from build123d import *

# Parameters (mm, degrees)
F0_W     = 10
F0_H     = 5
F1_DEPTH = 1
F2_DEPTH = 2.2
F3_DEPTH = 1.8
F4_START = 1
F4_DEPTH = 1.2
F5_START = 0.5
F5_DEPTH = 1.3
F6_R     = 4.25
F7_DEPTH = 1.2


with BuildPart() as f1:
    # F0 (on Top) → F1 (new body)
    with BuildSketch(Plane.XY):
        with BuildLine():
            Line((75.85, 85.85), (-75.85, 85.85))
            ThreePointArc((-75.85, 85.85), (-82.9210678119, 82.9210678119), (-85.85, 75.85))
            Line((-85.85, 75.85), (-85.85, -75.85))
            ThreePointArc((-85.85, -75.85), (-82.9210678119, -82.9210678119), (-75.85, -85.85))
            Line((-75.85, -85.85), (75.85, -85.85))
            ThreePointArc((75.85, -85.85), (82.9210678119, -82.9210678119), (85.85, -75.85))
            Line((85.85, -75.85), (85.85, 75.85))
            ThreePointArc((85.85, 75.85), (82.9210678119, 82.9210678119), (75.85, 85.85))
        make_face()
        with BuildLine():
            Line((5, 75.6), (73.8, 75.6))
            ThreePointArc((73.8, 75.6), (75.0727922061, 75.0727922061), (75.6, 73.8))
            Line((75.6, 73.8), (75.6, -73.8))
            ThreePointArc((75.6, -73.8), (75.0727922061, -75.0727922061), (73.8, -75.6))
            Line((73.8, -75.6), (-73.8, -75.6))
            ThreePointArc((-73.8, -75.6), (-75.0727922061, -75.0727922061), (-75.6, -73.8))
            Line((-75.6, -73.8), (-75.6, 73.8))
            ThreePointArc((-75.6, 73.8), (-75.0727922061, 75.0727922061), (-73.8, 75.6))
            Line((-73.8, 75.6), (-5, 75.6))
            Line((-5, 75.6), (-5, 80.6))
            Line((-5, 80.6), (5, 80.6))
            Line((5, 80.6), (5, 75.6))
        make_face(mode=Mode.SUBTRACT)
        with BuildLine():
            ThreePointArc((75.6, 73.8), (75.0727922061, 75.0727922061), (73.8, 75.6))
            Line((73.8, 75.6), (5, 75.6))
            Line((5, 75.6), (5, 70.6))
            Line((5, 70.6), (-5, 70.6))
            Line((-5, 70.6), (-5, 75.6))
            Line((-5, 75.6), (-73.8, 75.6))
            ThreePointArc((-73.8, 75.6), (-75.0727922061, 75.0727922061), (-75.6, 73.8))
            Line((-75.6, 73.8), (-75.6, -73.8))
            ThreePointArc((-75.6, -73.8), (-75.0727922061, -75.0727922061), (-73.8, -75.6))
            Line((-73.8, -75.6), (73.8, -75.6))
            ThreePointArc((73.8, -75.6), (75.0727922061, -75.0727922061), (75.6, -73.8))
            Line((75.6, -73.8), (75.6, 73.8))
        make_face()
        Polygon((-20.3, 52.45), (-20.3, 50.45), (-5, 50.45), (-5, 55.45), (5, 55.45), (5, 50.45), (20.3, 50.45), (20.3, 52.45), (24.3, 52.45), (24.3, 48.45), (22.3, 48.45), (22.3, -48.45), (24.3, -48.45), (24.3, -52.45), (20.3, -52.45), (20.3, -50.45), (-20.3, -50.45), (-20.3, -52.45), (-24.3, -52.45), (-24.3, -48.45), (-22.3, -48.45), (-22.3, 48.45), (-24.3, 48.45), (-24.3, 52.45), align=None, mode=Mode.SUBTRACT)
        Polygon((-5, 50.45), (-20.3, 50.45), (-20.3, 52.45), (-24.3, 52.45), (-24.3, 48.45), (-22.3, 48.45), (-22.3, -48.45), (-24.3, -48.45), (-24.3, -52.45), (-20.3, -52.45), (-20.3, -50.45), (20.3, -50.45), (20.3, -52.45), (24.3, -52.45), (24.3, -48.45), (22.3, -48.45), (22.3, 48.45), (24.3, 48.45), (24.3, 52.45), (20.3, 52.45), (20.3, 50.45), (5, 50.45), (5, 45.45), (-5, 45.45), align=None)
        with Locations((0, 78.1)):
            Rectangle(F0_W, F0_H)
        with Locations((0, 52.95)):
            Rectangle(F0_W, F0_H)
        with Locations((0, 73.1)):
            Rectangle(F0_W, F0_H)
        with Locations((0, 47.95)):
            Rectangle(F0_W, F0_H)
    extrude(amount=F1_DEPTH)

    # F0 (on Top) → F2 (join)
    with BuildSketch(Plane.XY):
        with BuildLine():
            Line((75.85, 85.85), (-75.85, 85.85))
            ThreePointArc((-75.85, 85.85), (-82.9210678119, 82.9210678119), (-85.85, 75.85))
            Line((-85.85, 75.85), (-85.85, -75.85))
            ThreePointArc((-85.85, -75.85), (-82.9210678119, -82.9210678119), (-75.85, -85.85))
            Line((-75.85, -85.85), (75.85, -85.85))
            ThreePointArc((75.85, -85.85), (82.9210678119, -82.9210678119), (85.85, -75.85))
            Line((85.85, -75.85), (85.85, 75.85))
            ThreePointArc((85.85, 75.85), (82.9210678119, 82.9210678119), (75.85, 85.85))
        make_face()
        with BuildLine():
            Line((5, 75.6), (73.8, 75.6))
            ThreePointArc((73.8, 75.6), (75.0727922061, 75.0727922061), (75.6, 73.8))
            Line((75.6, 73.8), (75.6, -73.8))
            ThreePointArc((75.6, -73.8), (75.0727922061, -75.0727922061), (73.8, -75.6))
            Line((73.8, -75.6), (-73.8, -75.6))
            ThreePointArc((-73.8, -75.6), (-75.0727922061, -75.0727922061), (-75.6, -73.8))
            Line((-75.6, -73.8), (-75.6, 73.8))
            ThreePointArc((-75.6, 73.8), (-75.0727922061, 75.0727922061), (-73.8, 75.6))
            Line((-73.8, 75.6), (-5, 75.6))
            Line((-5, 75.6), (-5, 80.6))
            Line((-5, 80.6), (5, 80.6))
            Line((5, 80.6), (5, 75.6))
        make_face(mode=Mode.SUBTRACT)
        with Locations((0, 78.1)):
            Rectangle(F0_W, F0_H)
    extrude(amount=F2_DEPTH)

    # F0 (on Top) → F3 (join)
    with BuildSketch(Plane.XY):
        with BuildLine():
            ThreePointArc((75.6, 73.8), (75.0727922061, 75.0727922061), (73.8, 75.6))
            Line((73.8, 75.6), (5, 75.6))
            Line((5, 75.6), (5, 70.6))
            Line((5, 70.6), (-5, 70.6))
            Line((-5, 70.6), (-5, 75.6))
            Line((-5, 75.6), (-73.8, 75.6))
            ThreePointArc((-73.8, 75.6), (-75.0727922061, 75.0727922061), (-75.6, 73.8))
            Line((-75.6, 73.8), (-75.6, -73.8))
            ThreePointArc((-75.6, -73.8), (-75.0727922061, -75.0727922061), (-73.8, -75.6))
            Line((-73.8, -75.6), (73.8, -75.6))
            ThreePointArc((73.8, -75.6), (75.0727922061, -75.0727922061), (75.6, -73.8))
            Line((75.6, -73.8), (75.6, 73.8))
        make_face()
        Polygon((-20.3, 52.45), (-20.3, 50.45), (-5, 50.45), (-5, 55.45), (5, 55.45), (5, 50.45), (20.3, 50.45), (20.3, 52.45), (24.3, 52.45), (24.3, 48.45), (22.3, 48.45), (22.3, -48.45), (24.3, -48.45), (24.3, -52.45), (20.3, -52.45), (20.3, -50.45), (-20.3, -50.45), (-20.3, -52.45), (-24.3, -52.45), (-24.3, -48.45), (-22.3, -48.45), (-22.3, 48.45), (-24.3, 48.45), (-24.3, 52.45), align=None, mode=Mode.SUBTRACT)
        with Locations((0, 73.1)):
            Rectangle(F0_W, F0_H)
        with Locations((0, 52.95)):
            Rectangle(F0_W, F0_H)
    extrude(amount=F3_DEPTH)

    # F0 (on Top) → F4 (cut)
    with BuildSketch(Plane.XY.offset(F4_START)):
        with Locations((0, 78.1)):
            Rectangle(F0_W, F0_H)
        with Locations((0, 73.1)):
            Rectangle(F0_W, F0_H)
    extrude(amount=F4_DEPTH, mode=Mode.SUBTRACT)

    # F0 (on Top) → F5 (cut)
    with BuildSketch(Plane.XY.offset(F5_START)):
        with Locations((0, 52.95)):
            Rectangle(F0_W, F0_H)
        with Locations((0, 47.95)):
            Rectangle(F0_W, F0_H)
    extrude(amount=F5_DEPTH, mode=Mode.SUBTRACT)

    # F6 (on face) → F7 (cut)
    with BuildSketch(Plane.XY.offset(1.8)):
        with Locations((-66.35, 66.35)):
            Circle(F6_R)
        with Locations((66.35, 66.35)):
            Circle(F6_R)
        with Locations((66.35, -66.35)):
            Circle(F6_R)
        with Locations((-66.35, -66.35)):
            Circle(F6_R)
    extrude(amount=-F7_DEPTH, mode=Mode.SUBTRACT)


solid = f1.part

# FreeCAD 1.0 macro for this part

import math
import FreeCAD as App
import Part
import Sketcher
from FreeCAD import Vector
Q = App.Units.Quantity

doc = App.newDocument("Part")
body = doc.addObject("PartDesign::Body", "Body")

# Sketch on XY plane
sketch1 = body.newObject("Sketcher::SketchObject", "Sketch")
sketch1.AttachmentSupport = (doc.getObject("XY_Plane"), [""])
sketch1.MapMode = "FlatFace"
sketch1.addGeometry(Part.LineSegment(Vector(75.85, 85.85, 0), Vector(-75.85, 85.85, 0)), False)
sketch1.addGeometry(Part.ArcOfCircle(Part.Circle(Vector(-75.85, 75.85, 0), Vector(0, 0, 1), 10), math.radians(90), math.radians(180)), False)
sketch1.addGeometry(Part.LineSegment(Vector(-85.85, 75.85, 0), Vector(-85.85, -75.85, 0)), False)
sketch1.addGeometry(Part.ArcOfCircle(Part.Circle(Vector(-75.85, -75.85, 0), Vector(0, 0, 1), 10), math.radians(180), math.radians(270)), False)
sketch1.addGeometry(Part.LineSegment(Vector(-75.85, -85.85, 0), Vector(75.85, -85.85, 0)), False)
sketch1.addGeometry(Part.ArcOfCircle(Part.Circle(Vector(75.85, -75.85, 0), Vector(0, 0, 1), 10), math.radians(-90), math.radians(0)), False)
sketch1.addGeometry(Part.LineSegment(Vector(85.85, -75.85, 0), Vector(85.85, 75.85, 0)), False)
sketch1.addGeometry(Part.ArcOfCircle(Part.Circle(Vector(75.85, 75.85, 0), Vector(0, 0, 1), 10), math.radians(0), math.radians(90)), False)
sketch1.addConstraint(Sketcher.Constraint("Tangent", 0, 2, 1, 1))
sketch1.addConstraint(Sketcher.Constraint("Tangent", 1, 2, 2, 1))
sketch1.addConstraint(Sketcher.Constraint("Tangent", 2, 2, 3, 1))
sketch1.addConstraint(Sketcher.Constraint("Tangent", 3, 2, 4, 1))
sketch1.addConstraint(Sketcher.Constraint("Tangent", 4, 2, 5, 1))
sketch1.addConstraint(Sketcher.Constraint("Tangent", 5, 2, 6, 1))
sketch1.addConstraint(Sketcher.Constraint("Tangent", 6, 2, 7, 1))
sketch1.addConstraint(Sketcher.Constraint("Tangent", 7, 2, 0, 1))
sketch1.addConstraint(Sketcher.Constraint("Horizontal", 0))
sketch1.addConstraint(Sketcher.Constraint("Vertical", 2))
sketch1.addConstraint(Sketcher.Constraint("Horizontal", 4))
sketch1.addConstraint(Sketcher.Constraint("Vertical", 6))
sketch1.addConstraint(Sketcher.Constraint("Equal", 1, 3))
sketch1.addConstraint(Sketcher.Constraint("Equal", 3, 5))
sketch1.addConstraint(Sketcher.Constraint("Equal", 5, 7))
sketch1.addConstraint(Sketcher.Constraint("Symmetric", 1, 3, 5, 3, -1, 1))
sketch1.addConstraint(Sketcher.Constraint("Equal", 4, 2))
sketch1.addConstraint(Sketcher.Constraint("Radius", 1, Q("10 mm")))
sketch1.addConstraint(Sketcher.Constraint("DistanceX", 0, 2, 0, 1, Q("151.7 mm")))
pad1 = body.newObject("PartDesign::Pad", "Pad")
pad1.Profile = sketch1
pad1.Length = 1

# Sketch on XY plane
sketch2 = body.newObject("Sketcher::SketchObject", "Sketch001")
sketch2.AttachmentSupport = (doc.getObject("XY_Plane"), [""])
sketch2.MapMode = "FlatFace"
sketch2.addGeometry(Part.LineSegment(Vector(75.85, 85.85, 0), Vector(-75.85, 85.85, 0)), False)
sketch2.addGeometry(Part.ArcOfCircle(Part.Circle(Vector(-75.85, 75.85, 0), Vector(0, 0, 1), 10), math.radians(90), math.radians(180)), False)
sketch2.addGeometry(Part.LineSegment(Vector(-85.85, 75.85, 0), Vector(-85.85, -75.85, 0)), False)
sketch2.addGeometry(Part.ArcOfCircle(Part.Circle(Vector(-75.85, -75.85, 0), Vector(0, 0, 1), 10), math.radians(180), math.radians(270)), False)
sketch2.addGeometry(Part.LineSegment(Vector(-75.85, -85.85, 0), Vector(75.85, -85.85, 0)), False)
sketch2.addGeometry(Part.ArcOfCircle(Part.Circle(Vector(75.85, -75.85, 0), Vector(0, 0, 1), 10), math.radians(-90), math.radians(0)), False)
sketch2.addGeometry(Part.LineSegment(Vector(85.85, -75.85, 0), Vector(85.85, 75.85, 0)), False)
sketch2.addGeometry(Part.ArcOfCircle(Part.Circle(Vector(75.85, 75.85, 0), Vector(0, 0, 1), 10), math.radians(0), math.radians(90)), False)
sketch2.addGeometry(Part.LineSegment(Vector(-73.8, 75.6, 0), Vector(73.8, 75.6, 0)), False)
sketch2.addGeometry(Part.ArcOfCircle(Part.Circle(Vector(73.8, 73.8, 0), Vector(0, 0, 1), 1.8), math.radians(0), math.radians(90)), False)
sketch2.addGeometry(Part.LineSegment(Vector(75.6, 73.8, 0), Vector(75.6, -73.8, 0)), False)
sketch2.addGeometry(Part.ArcOfCircle(Part.Circle(Vector(73.8, -73.8, 0), Vector(0, 0, 1), 1.8), math.radians(-90), math.radians(0)), False)
sketch2.addGeometry(Part.LineSegment(Vector(73.8, -75.6, 0), Vector(-73.8, -75.6, 0)), False)
sketch2.addGeometry(Part.ArcOfCircle(Part.Circle(Vector(-73.8, -73.8, 0), Vector(0, 0, 1), 1.8), math.radians(180), math.radians(270)), False)
sketch2.addGeometry(Part.LineSegment(Vector(-75.6, -73.8, 0), Vector(-75.6, 73.8, 0)), False)
sketch2.addGeometry(Part.ArcOfCircle(Part.Circle(Vector(-73.8, 73.8, 0), Vector(0, 0, 1), 1.8), math.radians(90), math.radians(180)), False)
sketch2.addConstraint(Sketcher.Constraint("Tangent", 0, 2, 1, 1))
sketch2.addConstraint(Sketcher.Constraint("Tangent", 1, 2, 2, 1))
sketch2.addConstraint(Sketcher.Constraint("Tangent", 2, 2, 3, 1))
sketch2.addConstraint(Sketcher.Constraint("Tangent", 3, 2, 4, 1))
sketch2.addConstraint(Sketcher.Constraint("Tangent", 4, 2, 5, 1))
sketch2.addConstraint(Sketcher.Constraint("Tangent", 5, 2, 6, 1))
sketch2.addConstraint(Sketcher.Constraint("Tangent", 6, 2, 7, 1))
sketch2.addConstraint(Sketcher.Constraint("Tangent", 7, 2, 0, 1))
sketch2.addConstraint(Sketcher.Constraint("Tangent", 8, 2, 9, 2))
sketch2.addConstraint(Sketcher.Constraint("Tangent", 9, 1, 10, 1))
sketch2.addConstraint(Sketcher.Constraint("Tangent", 10, 2, 11, 2))
sketch2.addConstraint(Sketcher.Constraint("Tangent", 11, 1, 12, 1))
sketch2.addConstraint(Sketcher.Constraint("Tangent", 12, 2, 13, 2))
sketch2.addConstraint(Sketcher.Constraint("Tangent", 13, 1, 14, 1))
sketch2.addConstraint(Sketcher.Constraint("Tangent", 14, 2, 15, 2))
sketch2.addConstraint(Sketcher.Constraint("Tangent", 15, 1, 8, 1))
sketch2.addConstraint(Sketcher.Constraint("Horizontal", 0))
sketch2.addConstraint(Sketcher.Constraint("Vertical", 2))
sketch2.addConstraint(Sketcher.Constraint("Horizontal", 4))
sketch2.addConstraint(Sketcher.Constraint("Vertical", 6))
sketch2.addConstraint(Sketcher.Constraint("Horizontal", 8))
sketch2.addConstraint(Sketcher.Constraint("Vertical", 10))
sketch2.addConstraint(Sketcher.Constraint("Horizontal", 12))
sketch2.addConstraint(Sketcher.Constraint("Vertical", 14))
sketch2.addConstraint(Sketcher.Constraint("Equal", 1, 3))
sketch2.addConstraint(Sketcher.Constraint("Equal", 3, 5))
sketch2.addConstraint(Sketcher.Constraint("Equal", 5, 7))
sketch2.addConstraint(Sketcher.Constraint("Equal", 9, 11))
sketch2.addConstraint(Sketcher.Constraint("Equal", 11, 13))
sketch2.addConstraint(Sketcher.Constraint("Equal", 13, 15))
sketch2.addConstraint(Sketcher.Constraint("Symmetric", 1, 3, 5, 3, -1, 1))
sketch2.addConstraint(Sketcher.Constraint("Symmetric", 9, 3, 13, 3, -1, 1))
sketch2.addConstraint(Sketcher.Constraint("Equal", 4, 2))
sketch2.addConstraint(Sketcher.Constraint("Equal", 12, 10))
sketch2.addConstraint(Sketcher.Constraint("Radius", 1, Q("10 mm")))
sketch2.addConstraint(Sketcher.Constraint("Radius", 9, Q("1.8 mm")))
sketch2.addConstraint(Sketcher.Constraint("DistanceX", 0, 2, 0, 1, Q("151.7 mm")))
sketch2.addConstraint(Sketcher.Constraint("DistanceX", 8, 1, 8, 2, Q("147.6 mm")))
pad2 = body.newObject("PartDesign::Pad", "Pad001")
pad2.Profile = sketch2
pad2.Length = 2.2

# Sketch on XY plane
sketch3 = body.newObject("Sketcher::SketchObject", "Sketch002")
sketch3.AttachmentSupport = (doc.getObject("XY_Plane"), [""])
sketch3.MapMode = "FlatFace"
sketch3.addGeometry(Part.ArcOfCircle(Part.Circle(Vector(73.8, 73.8, 0), Vector(0, 0, 1), 1.8), math.radians(0), math.radians(90)), False)
sketch3.addGeometry(Part.LineSegment(Vector(73.8, 75.6, 0), Vector(-73.8, 75.6, 0)), False)
sketch3.addGeometry(Part.ArcOfCircle(Part.Circle(Vector(-73.8, 73.8, 0), Vector(0, 0, 1), 1.8), math.radians(90), math.radians(180)), False)
sketch3.addGeometry(Part.LineSegment(Vector(-75.6, 73.8, 0), Vector(-75.6, -73.8, 0)), False)
sketch3.addGeometry(Part.ArcOfCircle(Part.Circle(Vector(-73.8, -73.8, 0), Vector(0, 0, 1), 1.8), math.radians(180), math.radians(270)), False)
sketch3.addGeometry(Part.LineSegment(Vector(-73.8, -75.6, 0), Vector(73.8, -75.6, 0)), False)
sketch3.addGeometry(Part.ArcOfCircle(Part.Circle(Vector(73.8, -73.8, 0), Vector(0, 0, 1), 1.8), math.radians(-90), math.radians(0)), False)
sketch3.addGeometry(Part.LineSegment(Vector(75.6, -73.8, 0), Vector(75.6, 73.8, 0)), False)
sketch3.addGeometry(Part.LineSegment(Vector(-24.3, 52.45, 0), Vector(-20.3, 52.45, 0)), False)
sketch3.addGeometry(Part.LineSegment(Vector(-20.3, 52.45, 0), Vector(-20.3, 50.45, 0)), False)
sketch3.addGeometry(Part.LineSegment(Vector(-20.3, 50.45, 0), Vector(20.3, 50.45, 0)), False)
sketch3.addGeometry(Part.LineSegment(Vector(20.3, 50.45, 0), Vector(20.3, 52.45, 0)), False)
sketch3.addGeometry(Part.LineSegment(Vector(20.3, 52.45, 0), Vector(24.3, 52.45, 0)), False)
sketch3.addGeometry(Part.LineSegment(Vector(24.3, 52.45, 0), Vector(24.3, 48.45, 0)), False)
sketch3.addGeometry(Part.LineSegment(Vector(24.3, 48.45, 0), Vector(22.3, 48.45, 0)), False)
sketch3.addGeometry(Part.LineSegment(Vector(22.3, 48.45, 0), Vector(22.3, -48.45, 0)), False)
sketch3.addGeometry(Part.LineSegment(Vector(22.3, -48.45, 0), Vector(24.3, -48.45, 0)), False)
sketch3.addGeometry(Part.LineSegment(Vector(24.3, -48.45, 0), Vector(24.3, -52.45, 0)), False)
sketch3.addGeometry(Part.LineSegment(Vector(24.3, -52.45, 0), Vector(20.3, -52.45, 0)), False)
sketch3.addGeometry(Part.LineSegment(Vector(20.3, -52.45, 0), Vector(20.3, -50.45, 0)), False)
sketch3.addGeometry(Part.LineSegment(Vector(20.3, -50.45, 0), Vector(-20.3, -50.45, 0)), False)
sketch3.addGeometry(Part.LineSegment(Vector(-20.3, -50.45, 0), Vector(-20.3, -52.45, 0)), False)
sketch3.addGeometry(Part.LineSegment(Vector(-20.3, -52.45, 0), Vector(-24.3, -52.45, 0)), False)
sketch3.addGeometry(Part.LineSegment(Vector(-24.3, -52.45, 0), Vector(-24.3, -48.45, 0)), False)
sketch3.addGeometry(Part.LineSegment(Vector(-24.3, -48.45, 0), Vector(-22.3, -48.45, 0)), False)
sketch3.addGeometry(Part.LineSegment(Vector(-22.3, -48.45, 0), Vector(-22.3, 48.45, 0)), False)
sketch3.addGeometry(Part.LineSegment(Vector(-22.3, 48.45, 0), Vector(-24.3, 48.45, 0)), False)
sketch3.addGeometry(Part.LineSegment(Vector(-24.3, 48.45, 0), Vector(-24.3, 52.45, 0)), False)
sketch3.addConstraint(Sketcher.Constraint("Tangent", 0, 2, 1, 1))
sketch3.addConstraint(Sketcher.Constraint("Tangent", 1, 2, 2, 1))
sketch3.addConstraint(Sketcher.Constraint("Tangent", 2, 2, 3, 1))
sketch3.addConstraint(Sketcher.Constraint("Tangent", 3, 2, 4, 1))
sketch3.addConstraint(Sketcher.Constraint("Tangent", 4, 2, 5, 1))
sketch3.addConstraint(Sketcher.Constraint("Tangent", 5, 2, 6, 1))
sketch3.addConstraint(Sketcher.Constraint("Tangent", 6, 2, 7, 1))
sketch3.addConstraint(Sketcher.Constraint("Tangent", 7, 2, 0, 1))
sketch3.addConstraint(Sketcher.Constraint("Coincident", 8, 2, 9, 1))
sketch3.addConstraint(Sketcher.Constraint("Coincident", 9, 2, 10, 1))
sketch3.addConstraint(Sketcher.Constraint("Coincident", 10, 2, 11, 1))
sketch3.addConstraint(Sketcher.Constraint("Coincident", 11, 2, 12, 1))
sketch3.addConstraint(Sketcher.Constraint("Coincident", 12, 2, 13, 1))
sketch3.addConstraint(Sketcher.Constraint("Coincident", 13, 2, 14, 1))
sketch3.addConstraint(Sketcher.Constraint("Coincident", 14, 2, 15, 1))
sketch3.addConstraint(Sketcher.Constraint("Coincident", 15, 2, 16, 1))
sketch3.addConstraint(Sketcher.Constraint("Coincident", 16, 2, 17, 1))
sketch3.addConstraint(Sketcher.Constraint("Coincident", 17, 2, 18, 1))
sketch3.addConstraint(Sketcher.Constraint("Coincident", 18, 2, 19, 1))
sketch3.addConstraint(Sketcher.Constraint("Coincident", 19, 2, 20, 1))
sketch3.addConstraint(Sketcher.Constraint("Coincident", 20, 2, 21, 1))
sketch3.addConstraint(Sketcher.Constraint("Coincident", 21, 2, 22, 1))
sketch3.addConstraint(Sketcher.Constraint("Coincident", 22, 2, 23, 1))
sketch3.addConstraint(Sketcher.Constraint("Coincident", 23, 2, 24, 1))
sketch3.addConstraint(Sketcher.Constraint("Coincident", 24, 2, 25, 1))
sketch3.addConstraint(Sketcher.Constraint("Coincident", 25, 2, 26, 1))
sketch3.addConstraint(Sketcher.Constraint("Coincident", 26, 2, 27, 1))
sketch3.addConstraint(Sketcher.Constraint("Coincident", 27, 2, 8, 1))
sketch3.addConstraint(Sketcher.Constraint("Horizontal", 1))
sketch3.addConstraint(Sketcher.Constraint("Vertical", 3))
sketch3.addConstraint(Sketcher.Constraint("Horizontal", 5))
sketch3.addConstraint(Sketcher.Constraint("Vertical", 7))
sketch3.addConstraint(Sketcher.Constraint("Horizontal", 8))
sketch3.addConstraint(Sketcher.Constraint("Vertical", 9))
sketch3.addConstraint(Sketcher.Constraint("Horizontal", 10))
sketch3.addConstraint(Sketcher.Constraint("Vertical", 11))
sketch3.addConstraint(Sketcher.Constraint("Horizontal", 12))
sketch3.addConstraint(Sketcher.Constraint("Vertical", 13))
sketch3.addConstraint(Sketcher.Constraint("Horizontal", 14))
sketch3.addConstraint(Sketcher.Constraint("Vertical", 15))
sketch3.addConstraint(Sketcher.Constraint("Horizontal", 16))
sketch3.addConstraint(Sketcher.Constraint("Vertical", 17))
sketch3.addConstraint(Sketcher.Constraint("Horizontal", 18))
sketch3.addConstraint(Sketcher.Constraint("Vertical", 19))
sketch3.addConstraint(Sketcher.Constraint("Horizontal", 20))
sketch3.addConstraint(Sketcher.Constraint("Vertical", 21))
sketch3.addConstraint(Sketcher.Constraint("Horizontal", 22))
sketch3.addConstraint(Sketcher.Constraint("Vertical", 23))
sketch3.addConstraint(Sketcher.Constraint("Horizontal", 24))
sketch3.addConstraint(Sketcher.Constraint("Vertical", 25))
sketch3.addConstraint(Sketcher.Constraint("Horizontal", 26))
sketch3.addConstraint(Sketcher.Constraint("Vertical", 27))
sketch3.addConstraint(Sketcher.Constraint("Equal", 0, 2))
sketch3.addConstraint(Sketcher.Constraint("Equal", 2, 4))
sketch3.addConstraint(Sketcher.Constraint("Equal", 4, 6))
sketch3.addConstraint(Sketcher.Constraint("Symmetric", 0, 3, 4, 3, -1, 1))
sketch3.addConstraint(Sketcher.Constraint("Symmetric", 8, 2, 18, 2, -1, 1))
sketch3.addConstraint(Sketcher.Constraint("Symmetric", 10, 2, 20, 2, -1, 1))
sketch3.addConstraint(Sketcher.Constraint("Symmetric", 12, 2, 22, 2, -1, 1))
sketch3.addConstraint(Sketcher.Constraint("Symmetric", 14, 2, 24, 2, -1, 1))
sketch3.addConstraint(Sketcher.Constraint("Symmetric", 16, 2, 26, 2, -1, 1))
sketch3.addConstraint(Sketcher.Constraint("Symmetric", 8, 2, 11, 2, -2))
sketch3.addConstraint(Sketcher.Constraint("Symmetric", 16, 2, 23, 2, -2))
sketch3.addConstraint(Sketcher.Constraint("Equal", 5, 3))
sketch3.addConstraint(Sketcher.Constraint("Equal", 26, 9))
sketch3.addConstraint(Sketcher.Constraint("Equal", 22, 13))
sketch3.addConstraint(Sketcher.Constraint("Radius", 0, Q("1.8 mm")))
sketch3.addConstraint(Sketcher.Constraint("DistanceX", 8, 1, 8, 2, Q("4 mm")))
sketch3.addConstraint(Sketcher.Constraint("DistanceX", 14, 2, 14, 1, Q("2 mm")))
sketch3.addConstraint(Sketcher.Constraint("DistanceX", 1, 2, 1, 1, Q("147.6 mm")))
sketch3.addConstraint(Sketcher.Constraint("DistanceX", 10, 1, 10, 2, Q("40.6 mm")))
sketch3.addConstraint(Sketcher.Constraint("DistanceY", 15, 2, 15, 1, Q("96.9 mm")))
pad3 = body.newObject("PartDesign::Pad", "Pad002")
pad3.Profile = sketch3
pad3.Length = 1.8

# Sketch on XY plane
sketch4 = body.newObject("Sketcher::SketchObject", "Sketch003")
sketch4.AttachmentSupport = (doc.getObject("XY_Plane"), [""])
sketch4.MapMode = "FlatFace"
sketch4.AttachmentOffset = App.Placement(Vector(0, 0, 1), App.Rotation())
sketch4.addGeometry(Part.LineSegment(Vector(-5, 80.6, 0), Vector(-5, 70.6, 0)), False)
sketch4.addGeometry(Part.LineSegment(Vector(-5, 70.6, 0), Vector(5, 70.6, 0)), False)
sketch4.addGeometry(Part.LineSegment(Vector(5, 70.6, 0), Vector(5, 80.6, 0)), False)
sketch4.addGeometry(Part.LineSegment(Vector(5, 80.6, 0), Vector(-5, 80.6, 0)), False)
sketch4.addConstraint(Sketcher.Constraint("Coincident", 0, 2, 1, 1))
sketch4.addConstraint(Sketcher.Constraint("Coincident", 1, 2, 2, 1))
sketch4.addConstraint(Sketcher.Constraint("Coincident", 2, 2, 3, 1))
sketch4.addConstraint(Sketcher.Constraint("Coincident", 3, 2, 0, 1))
sketch4.addConstraint(Sketcher.Constraint("Vertical", 0))
sketch4.addConstraint(Sketcher.Constraint("Horizontal", 1))
sketch4.addConstraint(Sketcher.Constraint("Vertical", 2))
sketch4.addConstraint(Sketcher.Constraint("Horizontal", 3))
sketch4.addConstraint(Sketcher.Constraint("Equal", 3, 0))
sketch4.addConstraint(Sketcher.Constraint("DistanceX", 1, 1, 1, 2, Q("10 mm")))
sketch4.addConstraint(Sketcher.Constraint("DistanceX", 0, 2, -1, 1, Q("5 mm")))
sketch4.addConstraint(Sketcher.Constraint("DistanceY", -1, 1, 0, 2, Q("70.6 mm")))
pocket1 = body.newObject("PartDesign::Pocket", "Pocket")
pocket1.Profile = sketch4
pocket1.Length = 1.2
pocket1.Reversed = True

# Sketch on XY plane
sketch5 = body.newObject("Sketcher::SketchObject", "Sketch004")
sketch5.AttachmentSupport = (doc.getObject("XY_Plane"), [""])
sketch5.MapMode = "FlatFace"
sketch5.AttachmentOffset = App.Placement(Vector(0, 0, 0.5), App.Rotation())
sketch5.addGeometry(Part.LineSegment(Vector(-5, 55.45, 0), Vector(-5, 45.45, 0)), False)
sketch5.addGeometry(Part.LineSegment(Vector(-5, 45.45, 0), Vector(5, 45.45, 0)), False)
sketch5.addGeometry(Part.LineSegment(Vector(5, 45.45, 0), Vector(5, 55.45, 0)), False)
sketch5.addGeometry(Part.LineSegment(Vector(5, 55.45, 0), Vector(-5, 55.45, 0)), False)
sketch5.addConstraint(Sketcher.Constraint("Coincident", 0, 2, 1, 1))
sketch5.addConstraint(Sketcher.Constraint("Coincident", 1, 2, 2, 1))
sketch5.addConstraint(Sketcher.Constraint("Coincident", 2, 2, 3, 1))
sketch5.addConstraint(Sketcher.Constraint("Coincident", 3, 2, 0, 1))
sketch5.addConstraint(Sketcher.Constraint("Vertical", 0))
sketch5.addConstraint(Sketcher.Constraint("Horizontal", 1))
sketch5.addConstraint(Sketcher.Constraint("Vertical", 2))
sketch5.addConstraint(Sketcher.Constraint("Horizontal", 3))
sketch5.addConstraint(Sketcher.Constraint("Equal", 3, 0))
sketch5.addConstraint(Sketcher.Constraint("DistanceX", 1, 1, 1, 2, Q("10 mm")))
sketch5.addConstraint(Sketcher.Constraint("DistanceX", 0, 2, -1, 1, Q("5 mm")))
sketch5.addConstraint(Sketcher.Constraint("DistanceY", -1, 1, 0, 2, Q("45.45 mm")))
pocket2 = body.newObject("PartDesign::Pocket", "Pocket001")
pocket2.Profile = sketch5
pocket2.Length = 1.3
pocket2.Reversed = True

# Sketch on XY plane
sketch6 = body.newObject("Sketcher::SketchObject", "Sketch005")
sketch6.AttachmentSupport = (doc.getObject("XY_Plane"), [""])
sketch6.MapMode = "FlatFace"
sketch6.AttachmentOffset = App.Placement(Vector(0, 0, 1.8), App.Rotation())
sketch6.addGeometry(Part.Circle(Vector(-66.35, 66.35, 0), Vector(0, 0, 1), 4.25), False)
sketch6.addGeometry(Part.Circle(Vector(66.35, 66.35, 0), Vector(0, 0, 1), 4.25), False)
sketch6.addGeometry(Part.Circle(Vector(66.35, -66.35, 0), Vector(0, 0, 1), 4.25), False)
sketch6.addGeometry(Part.Circle(Vector(-66.35, -66.35, 0), Vector(0, 0, 1), 4.25), False)
sketch6.addConstraint(Sketcher.Constraint("Equal", 0, 1))
sketch6.addConstraint(Sketcher.Constraint("Equal", 1, 2))
sketch6.addConstraint(Sketcher.Constraint("Equal", 2, 3))
sketch6.addConstraint(Sketcher.Constraint("Symmetric", 0, 3, 2, 3, -1, 1))
sketch6.addConstraint(Sketcher.Constraint("Symmetric", 1, 3, 3, 3, -1, 1))
sketch6.addConstraint(Sketcher.Constraint("Symmetric", 0, 3, 1, 3, -2))
sketch6.addConstraint(Sketcher.Constraint("Diameter", 0, Q("8.5 mm")))
sketch6.addConstraint(Sketcher.Constraint("DistanceX", 0, 3, 1, 3, Q("132.7 mm")))
sketch6.addConstraint(Sketcher.Constraint("DistanceY", 2, 3, 1, 3, Q("132.7 mm")))
pocket3 = body.newObject("PartDesign::Pocket", "Pocket002")
pocket3.Profile = sketch6
pocket3.Length = 1.2

doc.recompute()
